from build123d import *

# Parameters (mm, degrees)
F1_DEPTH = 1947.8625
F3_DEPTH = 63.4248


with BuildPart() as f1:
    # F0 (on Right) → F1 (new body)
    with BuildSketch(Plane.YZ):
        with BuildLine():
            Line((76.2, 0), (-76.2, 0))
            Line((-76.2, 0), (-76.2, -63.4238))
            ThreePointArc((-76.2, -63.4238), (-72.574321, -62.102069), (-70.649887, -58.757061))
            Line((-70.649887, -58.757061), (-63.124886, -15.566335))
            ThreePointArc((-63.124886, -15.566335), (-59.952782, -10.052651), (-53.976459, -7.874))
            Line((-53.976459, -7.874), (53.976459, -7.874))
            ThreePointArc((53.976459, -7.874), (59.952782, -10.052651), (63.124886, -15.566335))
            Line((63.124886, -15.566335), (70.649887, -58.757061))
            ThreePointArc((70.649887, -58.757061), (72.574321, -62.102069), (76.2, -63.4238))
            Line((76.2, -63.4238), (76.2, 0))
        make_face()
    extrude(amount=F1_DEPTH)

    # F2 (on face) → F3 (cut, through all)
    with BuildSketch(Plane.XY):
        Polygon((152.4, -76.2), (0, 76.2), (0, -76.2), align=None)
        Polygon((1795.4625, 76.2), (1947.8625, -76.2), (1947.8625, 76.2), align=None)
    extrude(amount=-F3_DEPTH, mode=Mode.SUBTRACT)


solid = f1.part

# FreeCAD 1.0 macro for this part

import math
import FreeCAD as App
import Part
import Sketcher
from FreeCAD import Vector
Q = App.Units.Quantity

doc = App.newDocument("Part")
body = doc.addObject("PartDesign::Body", "Body")

sketch1 = body.newObject("Sketcher::SketchObject", "Sketch")
sketch1.AttachmentSupport = (doc.getObject("YZ_Plane"), [""])
sketch1.MapMode = "FlatFace"
sketch1.addGeometry(Part.LineSegment(Vector(76.2, 0, 0), Vector(-76.2, 0, 0)), False)
sketch1.addGeometry(Part.LineSegment(Vector(-76.2, 0, 0), Vector(-76.2, -63.4238, 0)), False)
sketch1.addGeometry(Part.ArcOfCircle(Part.Circle(Vector(-76.200001, -57.790078, 0), Vector(0, 0, 1), 5.633722), math.radians(-89.999987), math.radians(-9.8833)), False)
sketch1.addGeometry(Part.LineSegment(Vector(-70.649887, -58.757061, 0), Vector(-63.124886, -15.566335, 0)), False)
sketch1.addGeometry(Part.ArcOfCircle(Part.Circle(Vector(-53.97646, -17.160239, 0), Vector(0, 0, 1), 9.286239), math.radians(89.999995), math.radians(170.116728)), False)
sketch1.addGeometry(Part.LineSegment(Vector(-53.976459, -7.874, 0), Vector(53.976459, -7.874, 0)), False)
sketch1.addGeometry(Part.ArcOfCircle(Part.Circle(Vector(53.97646, -17.160239, 0), Vector(0, 0, 1), 9.286239), math.radians(9.883272), math.radians(90.000005)), False)
sketch1.addGeometry(Part.LineSegment(Vector(63.124886, -15.566335, 0), Vector(70.649887, -58.757061, 0)), False)
sketch1.addGeometry(Part.ArcOfCircle(Part.Circle(Vector(76.200001, -57.790078, 0), Vector(0, 0, 1), 5.633722), math.radians(-170.1167), math.radians(-90.000013)), False)
sketch1.addGeometry(Part.LineSegment(Vector(76.2, -63.4238, 0), Vector(76.2, 0, 0)), False)
sketch1.addConstraint(Sketcher.Constraint("Coincident", 0, 2, 1, 1))
sketch1.addConstraint(Sketcher.Constraint("Coincident", 1, 2, 2, 1))
sketch1.addConstraint(Sketcher.Constraint("Tangent", 2, 2, 3, 1))
sketch1.addConstraint(Sketcher.Constraint("Tangent", 3, 2, 4, 2))
sketch1.addConstraint(Sketcher.Constraint("Tangent", 4, 1, 5, 1))
sketch1.addConstraint(Sketcher.Constraint("Tangent", 5, 2, 6, 2))
sketch1.addConstraint(Sketcher.Constraint("Tangent", 6, 1, 7, 1))
sketch1.addConstraint(Sketcher.Constraint("Tangent", 7, 2, 8, 1))
sketch1.addConstraint(Sketcher.Constraint("Coincident", 8, 2, 9, 1))
sketch1.addConstraint(Sketcher.Constraint("Coincident", 9, 2, 0, 1))
sketch1.addConstraint(Sketcher.Constraint("Horizontal", 0))
sketch1.addConstraint(Sketcher.Constraint("Vertical", 1))
sketch1.addConstraint(Sketcher.Constraint("Horizontal", 5))
sketch1.addConstraint(Sketcher.Constraint("Vertical", 9))
sketch1.addConstraint(Sketcher.Constraint("Equal", 4, 6))
sketch1.addConstraint(Sketcher.Constraint("Equal", 2, 8))
sketch1.addConstraint(Sketcher.Constraint("Symmetric", 0, 2, 9, 2, -1, 1))
sketch1.addConstraint(Sketcher.Constraint("Symmetric", 2, 3, 8, 3, -2))
sketch1.addConstraint(Sketcher.Constraint("Horizontal", 3, 2, 6, 1))
sketch1.addConstraint(Sketcher.Constraint("Vertical", 2, 3, 0, 2))
sketch1.addConstraint(Sketcher.Constraint("DistanceX", 0, 2, 0, 1, Q("6 in")))
sketch1.addConstraint(Sketcher.Constraint("Radius", 2, Q("0.2218001 in")))
sketch1.addConstraint(Sketcher.Constraint("Radius", 4, Q("0.3656 in")))
sketch1.addConstraint(Sketcher.Constraint("DistanceY", 1, 2, 1, 1, Q("2.497 in")))
sketch1.addConstraint(Sketcher.Constraint("DistanceY", 4, 1, -1, 1, Q("0.31 in")))
sketch1.addConstraint(Sketcher.Constraint("DistanceX", 2, 2, 3, 2, 7.525001))
pad1 = body.newObject("PartDesign::Pad", "Pad")
pad1.Profile = sketch1
pad1.Length = Q("76.6875 in")

sketch2 = body.newObject("Sketcher::SketchObject", "Sketch001")
sketch2.AttachmentSupport = (doc.getObject("XY_Plane"), [""])
sketch2.MapMode = "FlatFace"
sketch2.addGeometry(Part.LineSegment(Vector(152.4, -76.2, 0), Vector(0, 76.2, 0)), False)
sketch2.addGeometry(Part.LineSegment(Vector(0, 76.2, 0), Vector(0, -76.2, 0)), False)
sketch2.addGeometry(Part.LineSegment(Vector(0, -76.2, 0), Vector(152.4, -76.2, 0)), False)
sketch2.addGeometry(Part.LineSegment(Vector(1795.4625, 76.2, 0), Vector(1947.8625, -76.2, 0)), False)
sketch2.addGeometry(Part.LineSegment(Vector(1947.8625, -76.2, 0), Vector(1947.8625, 76.2, 0)), False)
sketch2.addGeometry(Part.LineSegment(Vector(1947.8625, 76.2, 0), Vector(1795.4625, 76.2, 0)), False)
sketch2.addConstraint(Sketcher.Constraint("Coincident", 0, 2, 1, 1))
sketch2.addConstraint(Sketcher.Constraint("Coincident", 1, 2, 2, 1))
sketch2.addConstraint(Sketcher.Constraint("Coincident", 2, 2, 0, 1))
sketch2.addConstraint(Sketcher.Constraint("Coincident", 3, 2, 4, 1))
sketch2.addConstraint(Sketcher.Constraint("Coincident", 4, 2, 5, 1))
sketch2.addConstraint(Sketcher.Constraint("Coincident", 5, 2, 3, 1))
sketch2.addConstraint(Sketcher.Constraint("Vertical", 1))
sketch2.addConstraint(Sketcher.Constraint("Horizontal", 2))
sketch2.addConstraint(Sketcher.Constraint("Vertical", 4))
sketch2.addConstraint(Sketcher.Constraint("Horizontal", 5))
sketch2.addConstraint(Sketcher.Constraint("Symmetric", 0, 2, 1, 2, -1, 1))
sketch2.addConstraint(Sketcher.Constraint("Parallel", 0, 3))
sketch2.addConstraint(Sketcher.Constraint("Horizontal", 2, 2, 3, 2))
sketch2.addConstraint(Sketcher.Constraint("Horizontal", 0, 2, 4, 2))
sketch2.addConstraint(Sketcher.Constraint("Equal", 5, 1))
sketch2.addConstraint(Sketcher.Constraint("DistanceX", 2, 1, 2, 2, Q("6 in")))
sketch2.addConstraint(Sketcher.Constraint("DistanceX", -1, 1, 3, 2, Q("76.6875 in")))
pocket1 = body.newObject("PartDesign::Pocket", "Pocket")
pocket1.Profile = sketch2
pocket1.Type = "ThroughAll"

doc.recompute()
